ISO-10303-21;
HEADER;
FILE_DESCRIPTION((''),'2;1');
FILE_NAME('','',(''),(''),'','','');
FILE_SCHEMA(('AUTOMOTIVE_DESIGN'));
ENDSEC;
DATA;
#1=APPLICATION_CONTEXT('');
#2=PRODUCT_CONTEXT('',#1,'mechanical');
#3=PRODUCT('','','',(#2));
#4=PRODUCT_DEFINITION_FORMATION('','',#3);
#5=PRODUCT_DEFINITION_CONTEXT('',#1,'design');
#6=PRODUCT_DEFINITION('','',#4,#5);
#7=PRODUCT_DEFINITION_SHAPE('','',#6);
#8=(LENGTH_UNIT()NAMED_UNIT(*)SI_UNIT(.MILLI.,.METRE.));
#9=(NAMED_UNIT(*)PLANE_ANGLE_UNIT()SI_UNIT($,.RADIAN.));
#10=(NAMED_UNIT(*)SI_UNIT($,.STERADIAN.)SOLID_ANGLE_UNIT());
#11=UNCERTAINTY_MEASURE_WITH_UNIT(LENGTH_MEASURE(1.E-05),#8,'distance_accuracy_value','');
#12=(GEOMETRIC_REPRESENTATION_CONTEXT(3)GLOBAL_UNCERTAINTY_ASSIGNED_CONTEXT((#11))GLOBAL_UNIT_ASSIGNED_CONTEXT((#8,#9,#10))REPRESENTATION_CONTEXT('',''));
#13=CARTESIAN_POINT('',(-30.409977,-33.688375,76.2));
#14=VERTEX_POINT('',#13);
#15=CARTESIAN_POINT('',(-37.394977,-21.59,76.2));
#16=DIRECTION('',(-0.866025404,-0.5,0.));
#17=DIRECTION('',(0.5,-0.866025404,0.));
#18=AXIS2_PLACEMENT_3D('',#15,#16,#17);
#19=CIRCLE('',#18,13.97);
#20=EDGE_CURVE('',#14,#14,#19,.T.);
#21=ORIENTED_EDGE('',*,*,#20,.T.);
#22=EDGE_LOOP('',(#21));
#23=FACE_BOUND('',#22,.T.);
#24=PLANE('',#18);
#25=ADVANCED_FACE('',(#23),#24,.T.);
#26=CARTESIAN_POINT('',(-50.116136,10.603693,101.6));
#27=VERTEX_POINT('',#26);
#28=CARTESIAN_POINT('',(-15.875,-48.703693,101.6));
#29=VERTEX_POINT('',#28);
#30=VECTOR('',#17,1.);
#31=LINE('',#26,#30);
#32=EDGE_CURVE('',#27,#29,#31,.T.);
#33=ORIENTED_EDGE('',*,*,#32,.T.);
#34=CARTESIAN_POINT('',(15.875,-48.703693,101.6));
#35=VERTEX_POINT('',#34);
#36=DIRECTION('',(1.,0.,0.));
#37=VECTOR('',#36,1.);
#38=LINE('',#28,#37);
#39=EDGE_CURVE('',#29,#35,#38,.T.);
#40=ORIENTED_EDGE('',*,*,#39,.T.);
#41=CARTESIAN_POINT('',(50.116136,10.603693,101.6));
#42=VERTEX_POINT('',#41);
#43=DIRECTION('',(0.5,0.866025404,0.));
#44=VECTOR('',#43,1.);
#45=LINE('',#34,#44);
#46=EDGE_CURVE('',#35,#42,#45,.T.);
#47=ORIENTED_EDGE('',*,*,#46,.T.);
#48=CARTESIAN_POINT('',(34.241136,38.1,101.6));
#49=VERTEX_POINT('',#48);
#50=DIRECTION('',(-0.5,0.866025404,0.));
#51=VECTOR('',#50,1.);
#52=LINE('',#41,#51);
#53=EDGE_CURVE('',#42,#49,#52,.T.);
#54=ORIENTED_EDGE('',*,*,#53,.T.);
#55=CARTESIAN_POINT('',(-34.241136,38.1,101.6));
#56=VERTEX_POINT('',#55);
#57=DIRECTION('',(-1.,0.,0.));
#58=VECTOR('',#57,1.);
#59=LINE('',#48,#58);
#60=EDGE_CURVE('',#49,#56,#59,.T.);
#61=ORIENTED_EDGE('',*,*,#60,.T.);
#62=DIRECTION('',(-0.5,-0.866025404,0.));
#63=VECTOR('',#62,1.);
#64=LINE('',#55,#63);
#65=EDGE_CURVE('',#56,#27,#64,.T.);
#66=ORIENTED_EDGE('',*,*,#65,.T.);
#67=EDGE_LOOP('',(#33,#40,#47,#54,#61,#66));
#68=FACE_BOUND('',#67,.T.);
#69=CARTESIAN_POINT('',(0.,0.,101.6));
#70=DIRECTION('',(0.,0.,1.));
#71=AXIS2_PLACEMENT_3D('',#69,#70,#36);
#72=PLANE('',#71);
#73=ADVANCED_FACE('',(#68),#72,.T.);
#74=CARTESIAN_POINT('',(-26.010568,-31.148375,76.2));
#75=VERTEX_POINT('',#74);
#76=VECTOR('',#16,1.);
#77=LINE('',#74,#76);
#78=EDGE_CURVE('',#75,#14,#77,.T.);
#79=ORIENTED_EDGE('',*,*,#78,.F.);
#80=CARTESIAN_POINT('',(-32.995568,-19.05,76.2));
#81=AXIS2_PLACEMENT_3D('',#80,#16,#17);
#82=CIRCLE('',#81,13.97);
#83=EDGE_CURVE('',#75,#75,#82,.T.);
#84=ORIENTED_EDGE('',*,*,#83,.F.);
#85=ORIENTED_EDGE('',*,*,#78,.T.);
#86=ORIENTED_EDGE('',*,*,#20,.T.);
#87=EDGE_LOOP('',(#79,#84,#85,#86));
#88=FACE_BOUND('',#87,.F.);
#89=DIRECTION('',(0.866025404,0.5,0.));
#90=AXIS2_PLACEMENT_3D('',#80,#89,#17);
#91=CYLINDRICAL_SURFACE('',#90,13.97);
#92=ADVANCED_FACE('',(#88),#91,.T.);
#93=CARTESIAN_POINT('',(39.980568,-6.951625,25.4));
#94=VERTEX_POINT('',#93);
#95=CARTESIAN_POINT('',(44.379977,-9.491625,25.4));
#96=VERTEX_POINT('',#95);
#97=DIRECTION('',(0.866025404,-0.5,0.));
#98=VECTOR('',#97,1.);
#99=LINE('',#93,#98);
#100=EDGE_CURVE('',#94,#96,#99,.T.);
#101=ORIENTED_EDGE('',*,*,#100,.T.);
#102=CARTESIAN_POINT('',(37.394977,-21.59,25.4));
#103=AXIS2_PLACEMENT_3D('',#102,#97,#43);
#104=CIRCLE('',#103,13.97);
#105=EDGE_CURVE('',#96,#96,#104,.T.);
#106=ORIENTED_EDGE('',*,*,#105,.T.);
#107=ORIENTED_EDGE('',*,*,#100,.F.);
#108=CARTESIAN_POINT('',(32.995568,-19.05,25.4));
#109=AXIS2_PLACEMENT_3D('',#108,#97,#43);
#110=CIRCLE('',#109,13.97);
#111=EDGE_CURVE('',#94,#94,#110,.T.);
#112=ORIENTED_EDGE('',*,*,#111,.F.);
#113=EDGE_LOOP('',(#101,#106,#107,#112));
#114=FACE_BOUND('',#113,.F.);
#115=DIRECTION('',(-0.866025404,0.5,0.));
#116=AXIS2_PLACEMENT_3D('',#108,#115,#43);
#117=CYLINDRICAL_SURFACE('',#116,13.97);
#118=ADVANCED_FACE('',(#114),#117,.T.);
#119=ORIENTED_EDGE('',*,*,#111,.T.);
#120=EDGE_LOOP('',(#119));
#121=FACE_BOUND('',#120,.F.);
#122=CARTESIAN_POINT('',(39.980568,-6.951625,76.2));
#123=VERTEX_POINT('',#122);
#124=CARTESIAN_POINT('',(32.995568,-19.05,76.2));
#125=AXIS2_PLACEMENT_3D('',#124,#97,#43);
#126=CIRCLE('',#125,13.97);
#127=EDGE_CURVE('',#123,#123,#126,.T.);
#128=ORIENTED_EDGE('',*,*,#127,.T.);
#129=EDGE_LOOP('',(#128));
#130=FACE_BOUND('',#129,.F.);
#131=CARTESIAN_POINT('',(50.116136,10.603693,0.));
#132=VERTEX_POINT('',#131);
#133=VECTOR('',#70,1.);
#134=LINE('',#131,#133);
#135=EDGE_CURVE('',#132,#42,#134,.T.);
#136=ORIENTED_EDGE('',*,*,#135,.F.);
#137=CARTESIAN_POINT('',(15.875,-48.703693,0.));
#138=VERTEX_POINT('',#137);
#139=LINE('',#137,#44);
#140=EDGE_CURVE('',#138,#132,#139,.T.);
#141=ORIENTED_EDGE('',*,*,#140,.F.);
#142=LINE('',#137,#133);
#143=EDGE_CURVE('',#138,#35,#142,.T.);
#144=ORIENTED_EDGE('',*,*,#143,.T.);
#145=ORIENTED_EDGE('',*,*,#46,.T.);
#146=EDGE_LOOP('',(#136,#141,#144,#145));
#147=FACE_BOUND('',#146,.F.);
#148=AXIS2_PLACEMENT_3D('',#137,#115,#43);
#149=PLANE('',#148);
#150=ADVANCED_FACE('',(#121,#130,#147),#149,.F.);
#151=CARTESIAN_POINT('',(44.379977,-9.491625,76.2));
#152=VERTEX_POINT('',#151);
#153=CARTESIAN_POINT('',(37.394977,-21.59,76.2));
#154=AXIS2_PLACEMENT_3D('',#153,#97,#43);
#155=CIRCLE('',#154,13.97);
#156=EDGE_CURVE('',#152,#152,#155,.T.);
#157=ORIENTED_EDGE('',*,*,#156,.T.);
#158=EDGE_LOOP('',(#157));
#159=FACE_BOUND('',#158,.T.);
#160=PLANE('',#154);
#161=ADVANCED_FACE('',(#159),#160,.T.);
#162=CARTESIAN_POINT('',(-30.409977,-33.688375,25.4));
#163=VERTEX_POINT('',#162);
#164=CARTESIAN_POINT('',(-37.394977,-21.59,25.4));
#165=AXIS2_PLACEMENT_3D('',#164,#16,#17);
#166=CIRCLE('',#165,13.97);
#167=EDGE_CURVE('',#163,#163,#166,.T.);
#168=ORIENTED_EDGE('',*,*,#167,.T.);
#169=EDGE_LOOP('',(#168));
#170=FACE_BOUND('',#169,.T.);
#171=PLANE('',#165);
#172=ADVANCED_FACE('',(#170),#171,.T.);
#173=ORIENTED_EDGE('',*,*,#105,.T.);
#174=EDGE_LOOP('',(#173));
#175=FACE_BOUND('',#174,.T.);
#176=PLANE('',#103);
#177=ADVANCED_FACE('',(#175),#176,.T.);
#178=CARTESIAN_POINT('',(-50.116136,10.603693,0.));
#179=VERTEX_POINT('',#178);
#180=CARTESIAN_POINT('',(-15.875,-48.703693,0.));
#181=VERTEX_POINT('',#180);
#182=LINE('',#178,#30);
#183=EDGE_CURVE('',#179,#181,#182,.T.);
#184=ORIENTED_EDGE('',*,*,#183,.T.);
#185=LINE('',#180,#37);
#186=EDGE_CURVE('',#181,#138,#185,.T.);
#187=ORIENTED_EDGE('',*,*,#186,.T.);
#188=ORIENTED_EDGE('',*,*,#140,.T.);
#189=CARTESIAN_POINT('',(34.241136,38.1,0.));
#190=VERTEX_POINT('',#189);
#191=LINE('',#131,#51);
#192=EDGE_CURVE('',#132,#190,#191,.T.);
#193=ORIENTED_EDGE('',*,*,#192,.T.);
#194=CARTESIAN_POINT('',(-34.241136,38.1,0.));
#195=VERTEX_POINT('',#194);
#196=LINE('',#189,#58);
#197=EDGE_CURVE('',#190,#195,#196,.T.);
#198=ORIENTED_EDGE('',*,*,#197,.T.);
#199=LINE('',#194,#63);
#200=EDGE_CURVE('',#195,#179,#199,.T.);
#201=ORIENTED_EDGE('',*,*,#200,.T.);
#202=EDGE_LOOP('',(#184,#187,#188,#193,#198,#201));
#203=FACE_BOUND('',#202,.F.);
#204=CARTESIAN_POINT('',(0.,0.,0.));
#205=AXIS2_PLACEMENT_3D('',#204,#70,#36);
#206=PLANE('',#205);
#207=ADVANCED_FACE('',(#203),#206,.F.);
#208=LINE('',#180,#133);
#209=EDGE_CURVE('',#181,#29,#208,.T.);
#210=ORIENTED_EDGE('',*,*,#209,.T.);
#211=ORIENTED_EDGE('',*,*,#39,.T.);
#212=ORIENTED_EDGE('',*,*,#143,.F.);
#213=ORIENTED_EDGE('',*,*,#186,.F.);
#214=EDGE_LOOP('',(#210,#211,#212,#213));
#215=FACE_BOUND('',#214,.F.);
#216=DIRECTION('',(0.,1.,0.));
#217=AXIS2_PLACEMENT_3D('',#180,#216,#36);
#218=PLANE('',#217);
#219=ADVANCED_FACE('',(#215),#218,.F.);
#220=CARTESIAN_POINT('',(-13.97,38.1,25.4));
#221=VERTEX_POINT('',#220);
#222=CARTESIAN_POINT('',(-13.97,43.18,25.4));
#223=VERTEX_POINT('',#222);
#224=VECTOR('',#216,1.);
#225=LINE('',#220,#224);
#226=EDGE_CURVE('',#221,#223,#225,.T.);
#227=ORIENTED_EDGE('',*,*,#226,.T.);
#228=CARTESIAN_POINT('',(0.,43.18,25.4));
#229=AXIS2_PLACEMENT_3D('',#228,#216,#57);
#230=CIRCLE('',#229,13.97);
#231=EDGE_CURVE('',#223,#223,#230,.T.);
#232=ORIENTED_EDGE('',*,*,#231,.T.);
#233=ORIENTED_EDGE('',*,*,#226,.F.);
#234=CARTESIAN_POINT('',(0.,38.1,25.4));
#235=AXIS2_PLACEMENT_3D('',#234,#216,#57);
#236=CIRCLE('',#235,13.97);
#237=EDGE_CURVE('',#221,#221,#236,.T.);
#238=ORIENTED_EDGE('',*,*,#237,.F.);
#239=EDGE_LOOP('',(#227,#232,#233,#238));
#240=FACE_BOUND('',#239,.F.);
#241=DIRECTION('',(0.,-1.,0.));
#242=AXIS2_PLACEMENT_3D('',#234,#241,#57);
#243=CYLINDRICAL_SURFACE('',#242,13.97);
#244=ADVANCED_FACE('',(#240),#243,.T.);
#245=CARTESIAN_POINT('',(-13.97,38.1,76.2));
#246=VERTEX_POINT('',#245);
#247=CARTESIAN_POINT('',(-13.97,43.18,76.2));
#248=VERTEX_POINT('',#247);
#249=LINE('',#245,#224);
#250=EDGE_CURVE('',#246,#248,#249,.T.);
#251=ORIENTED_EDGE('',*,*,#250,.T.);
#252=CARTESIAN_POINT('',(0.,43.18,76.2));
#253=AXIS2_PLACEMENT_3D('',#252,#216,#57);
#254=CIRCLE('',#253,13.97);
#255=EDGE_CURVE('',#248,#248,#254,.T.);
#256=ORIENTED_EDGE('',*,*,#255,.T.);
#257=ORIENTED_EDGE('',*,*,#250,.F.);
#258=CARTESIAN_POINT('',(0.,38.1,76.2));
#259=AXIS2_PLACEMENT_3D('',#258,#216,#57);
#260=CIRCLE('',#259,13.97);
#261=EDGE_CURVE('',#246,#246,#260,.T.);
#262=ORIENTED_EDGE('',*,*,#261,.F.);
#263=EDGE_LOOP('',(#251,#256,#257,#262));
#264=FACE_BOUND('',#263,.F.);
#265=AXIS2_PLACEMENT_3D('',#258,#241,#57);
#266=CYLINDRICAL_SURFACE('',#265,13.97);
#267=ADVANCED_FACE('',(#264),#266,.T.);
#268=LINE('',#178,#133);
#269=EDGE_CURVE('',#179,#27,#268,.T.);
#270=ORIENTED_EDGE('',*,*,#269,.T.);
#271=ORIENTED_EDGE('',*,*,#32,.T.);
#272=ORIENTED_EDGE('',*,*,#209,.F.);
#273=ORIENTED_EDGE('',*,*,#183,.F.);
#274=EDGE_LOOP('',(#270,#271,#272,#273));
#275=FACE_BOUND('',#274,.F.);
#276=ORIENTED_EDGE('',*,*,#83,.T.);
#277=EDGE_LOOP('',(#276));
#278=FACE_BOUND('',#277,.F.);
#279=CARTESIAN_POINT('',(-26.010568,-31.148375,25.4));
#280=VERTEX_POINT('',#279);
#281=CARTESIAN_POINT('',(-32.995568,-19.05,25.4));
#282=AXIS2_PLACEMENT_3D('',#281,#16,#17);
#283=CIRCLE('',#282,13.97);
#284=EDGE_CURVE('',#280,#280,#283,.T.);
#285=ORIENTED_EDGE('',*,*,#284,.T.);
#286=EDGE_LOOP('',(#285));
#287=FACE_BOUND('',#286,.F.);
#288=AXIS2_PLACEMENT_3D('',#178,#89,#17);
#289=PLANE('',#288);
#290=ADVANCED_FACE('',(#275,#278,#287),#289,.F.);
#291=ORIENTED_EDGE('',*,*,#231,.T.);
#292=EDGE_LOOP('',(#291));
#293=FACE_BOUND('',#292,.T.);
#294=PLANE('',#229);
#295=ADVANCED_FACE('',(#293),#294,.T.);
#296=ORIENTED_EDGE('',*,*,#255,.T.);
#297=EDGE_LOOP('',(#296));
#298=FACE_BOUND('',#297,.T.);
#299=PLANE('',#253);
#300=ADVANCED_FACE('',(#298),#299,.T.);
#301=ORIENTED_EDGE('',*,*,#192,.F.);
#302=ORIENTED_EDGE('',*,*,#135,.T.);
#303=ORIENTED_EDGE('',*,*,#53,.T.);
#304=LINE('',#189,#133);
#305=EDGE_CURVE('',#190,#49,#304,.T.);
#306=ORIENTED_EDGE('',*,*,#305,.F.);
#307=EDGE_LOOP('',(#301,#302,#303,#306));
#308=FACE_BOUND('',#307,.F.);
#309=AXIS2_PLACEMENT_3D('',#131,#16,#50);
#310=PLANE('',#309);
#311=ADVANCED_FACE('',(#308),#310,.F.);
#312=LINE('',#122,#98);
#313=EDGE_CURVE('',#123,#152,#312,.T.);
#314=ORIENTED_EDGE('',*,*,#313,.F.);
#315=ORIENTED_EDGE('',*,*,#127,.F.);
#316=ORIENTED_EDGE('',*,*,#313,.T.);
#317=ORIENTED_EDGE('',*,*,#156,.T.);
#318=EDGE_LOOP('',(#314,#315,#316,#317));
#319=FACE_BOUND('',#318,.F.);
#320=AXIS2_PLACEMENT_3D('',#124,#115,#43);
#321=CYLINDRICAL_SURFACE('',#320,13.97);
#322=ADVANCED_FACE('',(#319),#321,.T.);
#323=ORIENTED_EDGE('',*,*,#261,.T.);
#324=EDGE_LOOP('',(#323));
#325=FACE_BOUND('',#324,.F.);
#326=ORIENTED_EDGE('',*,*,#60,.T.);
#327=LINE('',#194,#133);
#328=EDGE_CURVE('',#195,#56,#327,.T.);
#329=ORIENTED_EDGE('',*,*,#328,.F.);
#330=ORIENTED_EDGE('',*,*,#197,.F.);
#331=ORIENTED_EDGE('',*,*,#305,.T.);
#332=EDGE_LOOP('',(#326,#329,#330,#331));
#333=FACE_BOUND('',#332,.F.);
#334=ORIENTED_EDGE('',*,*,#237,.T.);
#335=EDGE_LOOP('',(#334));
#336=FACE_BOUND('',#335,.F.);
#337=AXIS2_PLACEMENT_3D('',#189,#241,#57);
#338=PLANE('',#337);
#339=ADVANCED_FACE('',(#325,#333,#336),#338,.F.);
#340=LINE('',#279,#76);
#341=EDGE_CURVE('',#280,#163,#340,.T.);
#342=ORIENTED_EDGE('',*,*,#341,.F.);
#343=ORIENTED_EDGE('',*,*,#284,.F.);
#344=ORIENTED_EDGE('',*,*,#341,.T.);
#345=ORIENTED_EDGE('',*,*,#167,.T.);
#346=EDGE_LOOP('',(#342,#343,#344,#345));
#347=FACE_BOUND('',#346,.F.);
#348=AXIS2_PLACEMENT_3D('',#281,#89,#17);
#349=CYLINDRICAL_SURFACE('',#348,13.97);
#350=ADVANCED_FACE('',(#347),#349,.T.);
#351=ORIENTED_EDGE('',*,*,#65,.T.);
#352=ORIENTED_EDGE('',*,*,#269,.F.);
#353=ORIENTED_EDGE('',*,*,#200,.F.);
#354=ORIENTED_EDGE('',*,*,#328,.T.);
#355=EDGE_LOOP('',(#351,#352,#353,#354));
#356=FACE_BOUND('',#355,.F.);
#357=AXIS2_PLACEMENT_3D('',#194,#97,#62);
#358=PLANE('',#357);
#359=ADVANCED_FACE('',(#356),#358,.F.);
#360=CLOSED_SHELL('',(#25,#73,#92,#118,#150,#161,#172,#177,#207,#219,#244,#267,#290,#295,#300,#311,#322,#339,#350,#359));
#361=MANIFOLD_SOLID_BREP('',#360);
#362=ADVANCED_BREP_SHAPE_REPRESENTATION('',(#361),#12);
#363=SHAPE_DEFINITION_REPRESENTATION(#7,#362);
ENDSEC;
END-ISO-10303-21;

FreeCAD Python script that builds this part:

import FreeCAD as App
import Part
import Sketcher

V = App.Vector
Q = App.Units.Quantity

doc = App.newDocument("Part")
body = doc.addObject("PartDesign::Body", "Body")

sketch1 = doc.addObject("Sketcher::SketchObject", "Sketch")
body.addObject(sketch1)
sketch1.AttachmentSupport = (doc.XY_Plane, [""])
sketch1.MapMode = "FlatFace"
sketch1.addGeometry([
    Part.LineSegment(V(-50, 11, 0), V(-16, -49, 0)),
    Part.LineSegment(V(-16, -49, 0), V(16, -49, 0)),
    Part.LineSegment(V(16, -49, 0), V(50, 11, 0)),
    Part.LineSegment(V(50, 11, 0), V(34, 38, 0)),
    Part.LineSegment(V(34, 38, 0), V(-34, 38, 0)),
    Part.LineSegment(V(-34, 38, 0), V(-50, 11, 0)),
], False)
sketch1.addConstraint([
    Sketcher.Constraint("Coincident", 0, 2, 1, 1),
    Sketcher.Constraint("Coincident", 1, 2, 2, 1),
    Sketcher.Constraint("Coincident", 2, 2, 3, 1),
    Sketcher.Constraint("Coincident", 3, 2, 4, 1),
    Sketcher.Constraint("Coincident", 4, 2, 5, 1),
    Sketcher.Constraint("Coincident", 5, 2, 0, 1),
    Sketcher.Constraint("Horizontal", 1),
    Sketcher.Constraint("Horizontal", 4),
    Sketcher.Constraint("Symmetric", 2, 2, 5, 2, -2),
    Sketcher.Constraint("Parallel", 0, 3),
    Sketcher.Constraint("Parallel", 2, 5),
    Sketcher.Constraint("Equal", 0, 2),
    Sketcher.Constraint("Angle", 0, Q("-60 deg")),
    Sketcher.Constraint("DistanceX", 1, 1, 1, 2, Q("1.25 in")),
    Sketcher.Constraint("DistanceY", -1, 1, 3, 2, Q("1.5 in")),
    Sketcher.Constraint("Distance", 3, Q("1.25 in")),
    Sketcher.Constraint("DistanceX", 4, 2, 4, 1, Q("68.482272 mm")),
])
pad1 = doc.addObject("PartDesign::Pad", "Pad")
body.addObject(pad1)
pad1.Profile = sketch1
pad1.Length = Q("4 in")

sketch2 = doc.addObject("Sketcher::SketchObject", "Sketch001")
body.addObject(sketch2)
sketch2.Placement = App.Placement(V(-32.995568, -19.05, 0), App.Rotation(V(0.5, -0.866025404, 0), V(0, 0, 1), V(-0.866025404, -0.5, 0), "ZXY"))
sketch2.addGeometry([
    Part.Circle(V(0, 76, 0), V(0, 0, 1), 14),
    Part.Circle(V(0, 25, 0), V(0, 0, 1), 14),
], False)
sketch2.addConstraint([
    Sketcher.Constraint("Equal", 0, 1),
    Sketcher.Constraint("PointOnObject", 0, 3, -2),
    Sketcher.Constraint("PointOnObject", 1, 3, -2),
    Sketcher.Constraint("Diameter", 0, Q("1.1 in")),
    Sketcher.Constraint("DistanceY", -1, 1, 0, 3, Q("3 in")),
    Sketcher.Constraint("DistanceY", -1, 1, 1, 3, Q("1 in")),
])
pad2 = doc.addObject("PartDesign::Pad", "Pad001")
body.addObject(pad2)
pad2.Profile = sketch2
pad2.Length = Q("0.2 in")

sketch3 = doc.addObject("Sketcher::SketchObject", "Sketch002")
body.addObject(sketch3)
sketch3.AttachmentSupport = (doc.XZ_Plane, [""])
sketch3.MapMode = "FlatFace"
sketch3.AttachmentOffset = App.Placement(V(0, 0, -1.5 * 25.4), App.Rotation())
sketch3.addGeometry([
    Part.Circle(V(0, 76, 0), V(0, 0, 1), 14),
    Part.Circle(V(0, 25, 0), V(0, 0, 1), 14),
], False)
sketch3.addConstraint([
    Sketcher.Constraint("Equal", 0, 1),
    Sketcher.Constraint("PointOnObject", 0, 3, -2),
    Sketcher.Constraint("PointOnObject", 1, 3, -2),
    Sketcher.Constraint("Diameter", 0, Q("1.1 in")),
    Sketcher.Constraint("DistanceY", -1, 1, 0, 3, Q("3 in")),
    Sketcher.Constraint("DistanceY", -1, 1, 1, 3, Q("1 in")),
])
pad3 = doc.addObject("PartDesign::Pad", "Pad002")
body.addObject(pad3)
pad3.Profile = sketch3
pad3.Length = Q("0.2 in")
pad3.Reversed = True

sketch4 = doc.addObject("Sketcher::SketchObject", "Sketch003")
body.addObject(sketch4)
sketch4.Placement = App.Placement(V(32.995568, -19.05, 0), App.Rotation(V(0.5, 0.866025404, 0), V(0, 0, 1), V(0.866025404, -0.5, 0), "ZXY"))
sketch4.addGeometry([
    Part.Circle(V(0, 76, 0), V(0, 0, 1), 14),
    Part.Circle(V(0, 25, 0), V(0, 0, 1), 14),
], False)
sketch4.addConstraint([
    Sketcher.Constraint("Equal", 0, 1),
    Sketcher.Constraint("PointOnObject", 0, 3, -2),
    Sketcher.Constraint("PointOnObject", 1, 3, -2),
    Sketcher.Constraint("Diameter", 0, Q("1.1 in")),
    Sketcher.Constraint("DistanceY", -1, 1, 0, 3, Q("3 in")),
    Sketcher.Constraint("DistanceY", -1, 1, 1, 3, Q("1 in")),
])
pad4 = doc.addObject("PartDesign::Pad", "Pad003")
body.addObject(pad4)
pad4.Profile = sketch4
pad4.Length = Q("0.2 in")

doc.recompute()
